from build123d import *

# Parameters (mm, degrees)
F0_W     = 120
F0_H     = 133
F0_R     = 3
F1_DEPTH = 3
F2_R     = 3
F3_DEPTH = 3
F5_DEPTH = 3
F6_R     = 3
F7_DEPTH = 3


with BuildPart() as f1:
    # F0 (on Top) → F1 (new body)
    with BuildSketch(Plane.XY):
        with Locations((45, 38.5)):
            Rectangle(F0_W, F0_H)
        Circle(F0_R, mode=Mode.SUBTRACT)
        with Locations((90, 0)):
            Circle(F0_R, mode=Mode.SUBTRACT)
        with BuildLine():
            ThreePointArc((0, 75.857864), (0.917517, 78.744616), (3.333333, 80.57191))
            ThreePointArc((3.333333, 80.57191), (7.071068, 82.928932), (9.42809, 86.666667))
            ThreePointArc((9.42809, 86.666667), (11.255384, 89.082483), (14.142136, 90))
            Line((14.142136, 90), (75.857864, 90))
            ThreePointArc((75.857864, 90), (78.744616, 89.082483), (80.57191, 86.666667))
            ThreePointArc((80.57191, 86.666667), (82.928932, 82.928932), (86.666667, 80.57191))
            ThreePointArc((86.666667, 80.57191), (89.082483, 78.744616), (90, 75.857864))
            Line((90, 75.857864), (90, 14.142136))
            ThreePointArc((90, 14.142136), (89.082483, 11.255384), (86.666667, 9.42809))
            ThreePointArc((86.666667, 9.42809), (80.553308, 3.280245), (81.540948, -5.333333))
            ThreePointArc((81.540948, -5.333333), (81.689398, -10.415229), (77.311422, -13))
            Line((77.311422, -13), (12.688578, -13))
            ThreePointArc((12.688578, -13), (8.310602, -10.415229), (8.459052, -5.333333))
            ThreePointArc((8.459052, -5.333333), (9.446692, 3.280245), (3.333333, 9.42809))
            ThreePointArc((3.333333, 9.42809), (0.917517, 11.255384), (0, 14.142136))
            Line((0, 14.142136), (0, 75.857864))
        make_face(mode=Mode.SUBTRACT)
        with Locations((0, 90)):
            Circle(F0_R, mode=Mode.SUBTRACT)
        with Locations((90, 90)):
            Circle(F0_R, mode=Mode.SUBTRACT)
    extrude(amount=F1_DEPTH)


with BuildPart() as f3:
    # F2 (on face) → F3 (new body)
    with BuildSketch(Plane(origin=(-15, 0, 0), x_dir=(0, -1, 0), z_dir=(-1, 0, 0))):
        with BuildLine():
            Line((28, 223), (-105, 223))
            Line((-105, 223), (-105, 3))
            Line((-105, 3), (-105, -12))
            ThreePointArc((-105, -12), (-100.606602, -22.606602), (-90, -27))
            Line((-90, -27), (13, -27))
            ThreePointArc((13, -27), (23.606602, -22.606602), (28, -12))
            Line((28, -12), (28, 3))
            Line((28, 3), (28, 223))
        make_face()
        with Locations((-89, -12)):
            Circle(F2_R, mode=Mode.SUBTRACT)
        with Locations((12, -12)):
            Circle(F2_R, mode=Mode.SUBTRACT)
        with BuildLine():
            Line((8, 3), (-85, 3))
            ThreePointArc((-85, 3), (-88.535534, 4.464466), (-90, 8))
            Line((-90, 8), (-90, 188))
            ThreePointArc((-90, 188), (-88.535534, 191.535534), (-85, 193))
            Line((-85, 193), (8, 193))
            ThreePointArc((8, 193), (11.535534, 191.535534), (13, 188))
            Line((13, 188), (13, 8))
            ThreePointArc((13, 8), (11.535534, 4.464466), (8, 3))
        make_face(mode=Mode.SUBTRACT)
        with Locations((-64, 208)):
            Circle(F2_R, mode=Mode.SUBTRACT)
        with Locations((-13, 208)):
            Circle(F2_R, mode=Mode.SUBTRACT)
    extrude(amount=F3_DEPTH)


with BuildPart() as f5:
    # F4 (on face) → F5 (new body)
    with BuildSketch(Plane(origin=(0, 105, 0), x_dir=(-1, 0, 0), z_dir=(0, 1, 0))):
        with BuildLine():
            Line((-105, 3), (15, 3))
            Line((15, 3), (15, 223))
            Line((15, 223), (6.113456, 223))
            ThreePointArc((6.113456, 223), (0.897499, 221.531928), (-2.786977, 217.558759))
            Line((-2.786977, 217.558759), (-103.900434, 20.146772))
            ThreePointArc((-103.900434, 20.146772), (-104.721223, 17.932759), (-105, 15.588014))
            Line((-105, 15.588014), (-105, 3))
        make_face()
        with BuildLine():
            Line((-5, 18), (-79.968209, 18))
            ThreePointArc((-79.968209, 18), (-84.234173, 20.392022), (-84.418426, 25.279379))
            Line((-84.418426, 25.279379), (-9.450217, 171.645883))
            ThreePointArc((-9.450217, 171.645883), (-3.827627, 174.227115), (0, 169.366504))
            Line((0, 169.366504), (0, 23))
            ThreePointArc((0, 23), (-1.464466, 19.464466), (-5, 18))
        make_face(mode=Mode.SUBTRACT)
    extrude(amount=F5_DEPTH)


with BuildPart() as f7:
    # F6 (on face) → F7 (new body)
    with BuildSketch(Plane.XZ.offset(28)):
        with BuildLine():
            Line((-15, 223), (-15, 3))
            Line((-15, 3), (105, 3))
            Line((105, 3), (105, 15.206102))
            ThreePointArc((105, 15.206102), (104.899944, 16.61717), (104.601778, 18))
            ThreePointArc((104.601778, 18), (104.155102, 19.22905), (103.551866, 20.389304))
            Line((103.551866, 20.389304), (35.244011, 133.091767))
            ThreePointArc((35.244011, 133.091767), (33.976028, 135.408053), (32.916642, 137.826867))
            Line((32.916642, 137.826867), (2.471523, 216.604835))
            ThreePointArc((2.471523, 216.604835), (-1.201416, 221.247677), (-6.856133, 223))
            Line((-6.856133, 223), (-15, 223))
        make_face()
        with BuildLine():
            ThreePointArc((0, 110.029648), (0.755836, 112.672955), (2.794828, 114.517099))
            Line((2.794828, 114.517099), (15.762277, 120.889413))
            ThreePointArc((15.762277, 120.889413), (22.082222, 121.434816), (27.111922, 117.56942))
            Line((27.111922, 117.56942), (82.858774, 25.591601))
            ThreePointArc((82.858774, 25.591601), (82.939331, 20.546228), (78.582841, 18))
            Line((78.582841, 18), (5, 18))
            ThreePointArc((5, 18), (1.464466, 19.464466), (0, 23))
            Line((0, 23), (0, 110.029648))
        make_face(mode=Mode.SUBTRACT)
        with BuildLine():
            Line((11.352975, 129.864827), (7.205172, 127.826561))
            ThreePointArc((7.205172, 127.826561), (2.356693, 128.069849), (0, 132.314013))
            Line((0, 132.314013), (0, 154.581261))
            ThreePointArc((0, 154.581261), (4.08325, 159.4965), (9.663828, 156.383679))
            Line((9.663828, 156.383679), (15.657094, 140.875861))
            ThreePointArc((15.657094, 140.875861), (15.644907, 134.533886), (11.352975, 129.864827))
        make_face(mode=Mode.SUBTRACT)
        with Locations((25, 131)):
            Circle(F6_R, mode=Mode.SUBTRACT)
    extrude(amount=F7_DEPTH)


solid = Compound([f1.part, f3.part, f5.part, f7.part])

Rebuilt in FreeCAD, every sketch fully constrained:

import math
import FreeCAD as App
import Part
import Sketcher

V = App.Vector

doc = App.newDocument("Part")
body = doc.addObject("PartDesign::Body", "Body")

# Sketch on XY plane
sketch1 = body.newObject("Sketcher::SketchObject", "Sketch")
sketch1.AttachmentSupport = (doc.getObject("XY_Plane"), [""])
sketch1.MapMode = "FlatFace"
sketch1.addGeometry(Part.LineSegment(V(-15, 105, 0), V(-15, -28, 0)), False)
sketch1.addGeometry(Part.LineSegment(V(-15, -28, 0), V(105, -28, 0)), False)
sketch1.addGeometry(Part.LineSegment(V(105, -28, 0), V(105, 105, 0)), False)
sketch1.addGeometry(Part.LineSegment(V(105, 105, 0), V(-15, 105, 0)), False)
sketch1.addGeometry(Part.Circle(V(0, 0, 0), V(0, 0, 1), 3), False)
sketch1.addGeometry(Part.Circle(V(90, 0, 0), V(0, 0, 1), 3), False)
sketch1.addGeometry(Part.LineSegment(V(0, 14.1, 0), V(0, 75.9, 0)), False)
sketch1.addGeometry(Part.ArcOfCircle(Part.Circle(V(5, 75.9, 0), V(0, 0, 1), 5), math.radians(109), math.radians(180)), False)
sketch1.addGeometry(Part.ArcOfCircle(Part.Circle(V(0, 90, 0), V(0, 0, 1), 10), math.radians(-71), math.radians(-19)), False)
sketch1.addGeometry(Part.ArcOfCircle(Part.Circle(V(14.1, 85, 0), V(0, 0, 1), 5), math.radians(90), math.radians(161)), False)
sketch1.addGeometry(Part.LineSegment(V(14.1, 90, 0), V(75.9, 90, 0)), False)
sketch1.addGeometry(Part.ArcOfCircle(Part.Circle(V(75.9, 85, 0), V(0, 0, 1), 5), math.radians(19), math.radians(90)), False)
sketch1.addGeometry(Part.ArcOfCircle(Part.Circle(V(90, 90, 0), V(0, 0, 1), 10), math.radians(-161), math.radians(-109)), False)
sketch1.addGeometry(Part.ArcOfCircle(Part.Circle(V(85, 75.9, 0), V(0, 0, 1), 5), math.radians(0), math.radians(71)), False)
sketch1.addGeometry(Part.LineSegment(V(90, 75.9, 0), V(90, 14.1, 0)), False)
sketch1.addGeometry(Part.ArcOfCircle(Part.Circle(V(85, 14.1, 0), V(0, 0, 1), 5), math.radians(-71), math.radians(0)), False)
sketch1.addGeometry(Part.ArcOfCircle(Part.Circle(V(90, 0, 0), V(0, 0, 1), 10), math.radians(109), math.radians(212)), False)
sketch1.addGeometry(Part.ArcOfCircle(Part.Circle(V(77.3, -8, 0), V(0, 0, 1), 5), math.radians(-90), math.radians(32)), False)
sketch1.addGeometry(Part.LineSegment(V(77.3, -13, 0), V(12.7, -13, 0)), False)
sketch1.addGeometry(Part.ArcOfCircle(Part.Circle(V(12.7, -8, 0), V(0, 0, 1), 5), math.radians(148), math.radians(270)), False)
sketch1.addGeometry(Part.ArcOfCircle(Part.Circle(V(0, 0, 0), V(0, 0, 1), 10), math.radians(-32), math.radians(71)), False)
sketch1.addGeometry(Part.ArcOfCircle(Part.Circle(V(5, 14.1, 0), V(0, 0, 1), 5), math.radians(180), math.radians(251)), False)
sketch1.addGeometry(Part.Circle(V(0, 90, 0), V(0, 0, 1), 3), False)
sketch1.addGeometry(Part.Circle(V(90, 90, 0), V(0, 0, 1), 3), False)
sketch1.addConstraint(Sketcher.Constraint("Coincident", 0, 2, 1, 1))
sketch1.addConstraint(Sketcher.Constraint("Coincident", 1, 2, 2, 1))
sketch1.addConstraint(Sketcher.Constraint("Coincident", 2, 2, 3, 1))
sketch1.addConstraint(Sketcher.Constraint("Coincident", 3, 2, 0, 1))
sketch1.addConstraint(Sketcher.Constraint("Tangent", 6, 2, 7, 2))
sketch1.addConstraint(Sketcher.Constraint("Tangent", 7, 1, 8, 1))
sketch1.addConstraint(Sketcher.Constraint("Tangent", 8, 2, 9, 2))
sketch1.addConstraint(Sketcher.Constraint("Tangent", 9, 1, 10, 1))
sketch1.addConstraint(Sketcher.Constraint("Tangent", 10, 2, 11, 2))
sketch1.addConstraint(Sketcher.Constraint("Tangent", 11, 1, 12, 1))
sketch1.addConstraint(Sketcher.Constraint("Tangent", 12, 2, 13, 2))
sketch1.addConstraint(Sketcher.Constraint("Tangent", 13, 1, 14, 1))
sketch1.addConstraint(Sketcher.Constraint("Tangent", 14, 2, 15, 2))
sketch1.addConstraint(Sketcher.Constraint("Tangent", 15, 1, 16, 1))
sketch1.addConstraint(Sketcher.Constraint("Tangent", 16, 2, 17, 2))
sketch1.addConstraint(Sketcher.Constraint("Tangent", 17, 1, 18, 1))
sketch1.addConstraint(Sketcher.Constraint("Tangent", 18, 2, 19, 2))
sketch1.addConstraint(Sketcher.Constraint("Tangent", 19, 1, 20, 1))
sketch1.addConstraint(Sketcher.Constraint("Tangent", 20, 2, 21, 2))
sketch1.addConstraint(Sketcher.Constraint("Tangent", 21, 1, 6, 1))
sketch1.addConstraint(Sketcher.Constraint("Vertical", 0))
sketch1.addConstraint(Sketcher.Constraint("Horizontal", 1))
sketch1.addConstraint(Sketcher.Constraint("Vertical", 2))
sketch1.addConstraint(Sketcher.Constraint("Horizontal", 3))
sketch1.addConstraint(Sketcher.Constraint("Vertical", 6))
sketch1.addConstraint(Sketcher.Constraint("Horizontal", 10))
sketch1.addConstraint(Sketcher.Constraint("Vertical", 14))
sketch1.addConstraint(Sketcher.Constraint("Horizontal", 18))
sketch1.addConstraint(Sketcher.Constraint("Coincident", 4, 3, -1, 1))
sketch1.addConstraint(Sketcher.Constraint("Coincident", 20, 3, -1, 1))
sketch1.addConstraint(Sketcher.Constraint("Coincident", 16, 3, 5, 3))
sketch1.addConstraint(Sketcher.Constraint("Coincident", 22, 3, 8, 3))
sketch1.addConstraint(Sketcher.Constraint("Coincident", 23, 3, 12, 3))
sketch1.addConstraint(Sketcher.Constraint("Equal", 4, 5))
sketch1.addConstraint(Sketcher.Constraint("Equal", 7, 9))
sketch1.addConstraint(Sketcher.Constraint("Equal", 9, 11))
sketch1.addConstraint(Sketcher.Constraint("Equal", 8, 12))
sketch1.addConstraint(Sketcher.Constraint("Equal", 11, 13))
sketch1.addConstraint(Sketcher.Constraint("Equal", 13, 15))
sketch1.addConstraint(Sketcher.Constraint("Equal", 15, 17))
sketch1.addConstraint(Sketcher.Constraint("Equal", 17, 19))
sketch1.addConstraint(Sketcher.Constraint("Equal", 16, 20))
sketch1.addConstraint(Sketcher.Constraint("Equal", 19, 21))
sketch1.addConstraint(Sketcher.Constraint("Equal", 5, 22))
sketch1.addConstraint(Sketcher.Constraint("Equal", 22, 23))
sketch1.addConstraint(Sketcher.Constraint("PointOnObject", 5, 3, -1))
sketch1.addConstraint(Sketcher.Constraint("PointOnObject", 22, 3, -2))
sketch1.addConstraint(Sketcher.Constraint("PointOnObject", 6, 2, -2))
sketch1.addConstraint(Sketcher.Constraint("Horizontal", 8, 3, 12, 3))
sketch1.addConstraint(Sketcher.Constraint("Horizontal", 7, 3, 13, 3))
sketch1.addConstraint(Sketcher.Constraint("Horizontal", 15, 3, 21, 3))
sketch1.addConstraint(Sketcher.Constraint("Horizontal", 23, 3, 9, 1))
sketch1.addConstraint(Sketcher.Constraint("Vertical", 12, 2, 15, 1))
sketch1.addConstraint(Sketcher.Constraint("Equal", 10, 6))
sketch1.addConstraint(Sketcher.Constraint("Diameter", 4, 6.0))
sketch1.addConstraint(Sketcher.Constraint("Radius", 7, 5.0))
sketch1.addConstraint(Sketcher.Constraint("Radius", 16, 10.0))
sketch1.addConstraint(Sketcher.Constraint("DistanceX", 1, 1, 1, 2, 120.0))
sketch1.addConstraint(Sketcher.Constraint("DistanceY", 0, 2, 0, 1, 133.0))
sketch1.addConstraint(Sketcher.Constraint("DistanceX", -1, 1, 5, 3, 90.0))
sketch1.addConstraint(Sketcher.Constraint("DistanceY", 17, 3, -1, 1, 8.0))
sketch1.addConstraint(Sketcher.Constraint("DistanceX", 0, 2, -1, 1, 15.0))
sketch1.addConstraint(Sketcher.Constraint("DistanceY", 0, 2, -1, 1, 28.0))
pad1 = body.newObject("PartDesign::Pad", "Pad")
pad1.Profile = sketch1
pad1.Length = 3
body2 = doc.addObject("PartDesign::Body", "Body001")

# Sketch on YZ plane
sketch2 = body2.newObject("Sketcher::SketchObject", "Sketch001")
sketch2.AttachmentSupport = (doc.getObject("YZ_Plane001"), [""])
sketch2.MapMode = "FlatFace"
sketch2.AttachmentOffset = App.Placement(V(0, 0, -15), App.Rotation())
sketch2.addGeometry(Part.LineSegment(V(-28, 223, 0), V(105, 223, 0)), False)
sketch2.addGeometry(Part.LineSegment(V(105, 223, 0), V(105, -12, 0)), False)
sketch2.addGeometry(Part.ArcOfCircle(Part.Circle(V(90, -12, 0), V(0, 0, 1), 15), math.radians(-90), math.radians(0)), False)
sketch2.addGeometry(Part.LineSegment(V(90, -27, 0), V(-13, -27, 0)), False)
sketch2.addGeometry(Part.ArcOfCircle(Part.Circle(V(-13, -12, 0), V(0, 0, 1), 15), math.radians(180), math.radians(270)), False)
sketch2.addGeometry(Part.LineSegment(V(-28, -12, 0), V(-28, 223, 0)), False)
sketch2.addGeometry(Part.Circle(V(89, -12, 0), V(0, 0, 1), 3), False)
sketch2.addGeometry(Part.Circle(V(-12, -12, 0), V(0, 0, 1), 3), False)
sketch2.addGeometry(Part.Circle(V(64, 208, 0), V(0, 0, 1), 3), False)
sketch2.addGeometry(Part.ArcOfCircle(Part.Circle(V(-8, 8, 0), V(0, 0, 1), 5), math.radians(180), math.radians(270)), False)
sketch2.addGeometry(Part.LineSegment(V(-8, 3, 0), V(85, 3, 0)), False)
sketch2.addGeometry(Part.ArcOfCircle(Part.Circle(V(85, 8, 0), V(0, 0, 1), 5), math.radians(-90), math.radians(0)), False)
sketch2.addGeometry(Part.LineSegment(V(90, 8, 0), V(90, 188, 0)), False)
sketch2.addGeometry(Part.ArcOfCircle(Part.Circle(V(85, 188, 0), V(0, 0, 1), 5), math.radians(0), math.radians(90)), False)
sketch2.addGeometry(Part.LineSegment(V(85, 193, 0), V(-8, 193, 0)), False)
sketch2.addGeometry(Part.ArcOfCircle(Part.Circle(V(-8, 188, 0), V(0, 0, 1), 5), math.radians(90), math.radians(180)), False)
sketch2.addGeometry(Part.LineSegment(V(-13, 188, 0), V(-13, 8, 0)), False)
sketch2.addGeometry(Part.Circle(V(13, 208, 0), V(0, 0, 1), 3), False)
sketch2.addConstraint(Sketcher.Constraint("Coincident", 0, 2, 1, 1))
sketch2.addConstraint(Sketcher.Constraint("Tangent", 1, 2, 2, 2))
sketch2.addConstraint(Sketcher.Constraint("Tangent", 2, 1, 3, 1))
sketch2.addConstraint(Sketcher.Constraint("Tangent", 3, 2, 4, 2))
sketch2.addConstraint(Sketcher.Constraint("Tangent", 4, 1, 5, 1))
sketch2.addConstraint(Sketcher.Constraint("Coincident", 5, 2, 0, 1))
sketch2.addConstraint(Sketcher.Constraint("Tangent", 9, 2, 10, 1))
sketch2.addConstraint(Sketcher.Constraint("Tangent", 10, 2, 11, 1))
sketch2.addConstraint(Sketcher.Constraint("Tangent", 11, 2, 12, 1))
sketch2.addConstraint(Sketcher.Constraint("Tangent", 12, 2, 13, 1))
sketch2.addConstraint(Sketcher.Constraint("Tangent", 13, 2, 14, 1))
sketch2.addConstraint(Sketcher.Constraint("Tangent", 14, 2, 15, 1))
sketch2.addConstraint(Sketcher.Constraint("Tangent", 15, 2, 16, 1))
sketch2.addConstraint(Sketcher.Constraint("Tangent", 16, 2, 9, 1))
sketch2.addConstraint(Sketcher.Constraint("Horizontal", 0))
sketch2.addConstraint(Sketcher.Constraint("Vertical", 1))
sketch2.addConstraint(Sketcher.Constraint("Horizontal", 3))
sketch2.addConstraint(Sketcher.Constraint("Vertical", 5))
sketch2.addConstraint(Sketcher.Constraint("Horizontal", 10))
sketch2.addConstraint(Sketcher.Constraint("Vertical", 12))
sketch2.addConstraint(Sketcher.Constraint("Horizontal", 14))
sketch2.addConstraint(Sketcher.Constraint("Vertical", 16))
sketch2.addConstraint(Sketcher.Constraint("Equal", 2, 4))
sketch2.addConstraint(Sketcher.Constraint("Equal", 6, 7))
sketch2.addConstraint(Sketcher.Constraint("Equal", 7, 8))
sketch2.addConstraint(Sketcher.Constraint("Equal", 9, 11))
sketch2.addConstraint(Sketcher.Constraint("Equal", 11, 13))
sketch2.addConstraint(Sketcher.Constraint("Equal", 13, 15))
sketch2.addConstraint(Sketcher.Constraint("Equal", 8, 17))
sketch2.addConstraint(Sketcher.Constraint("Horizontal", 4, 3, 6, 3))
sketch2.addConstraint(Sketcher.Constraint("Horizontal", 6, 3, 7, 3))
sketch2.addConstraint(Sketcher.Constraint("Horizontal", 8, 3, 17, 3))
sketch2.addConstraint(Sketcher.Constraint("Vertical", 2, 1, 11, 2))
sketch2.addConstraint(Sketcher.Constraint("Vertical", 3, 2, 15, 2))
sketch2.addConstraint(Sketcher.Constraint("Diameter", 6, 6.0))
sketch2.addConstraint(Sketcher.Constraint("Radius", 2, 14.999999))
sketch2.addConstraint(Sketcher.Constraint("Radius", 9, 5.0))
sketch2.addConstraint(Sketcher.Constraint("DistanceX", 0, 1, 0, 2, 133.0))
sketch2.addConstraint(Sketcher.Constraint("DistanceY", 1, 2, 1, 1, 235.0))
sketch2.addConstraint(Sketcher.Constraint("DistanceY", 12, 1, 12, 2, 180.0))
sketch2.addConstraint(Sketcher.Constraint("DistanceX", -1, 1, 2, 3, 90.000001))
sketch2.addConstraint(Sketcher.Constraint("DistanceY", 2, 3, -1, 1, 12.000001))
sketch2.addConstraint(Sketcher.Constraint("DistanceX", -1, 1, 6, 3, 89.0))
sketch2.addConstraint(Sketcher.Constraint("DistanceX", 7, 3, -1, 1, 12.0))
sketch2.addConstraint(Sketcher.Constraint("DistanceX", -1, 1, 8, 3, 64.0))
sketch2.addConstraint(Sketcher.Constraint("DistanceY", -1, 1, 8, 3, 208.0))
sketch2.addConstraint(Sketcher.Constraint("DistanceY", -1, 1, 9, 3, 8.0))
sketch2.addConstraint(Sketcher.Constraint("DistanceX", -1, 1, 17, 3, 13.0))
pad2 = body2.newObject("PartDesign::Pad", "Pad001")
pad2.Profile = sketch2
pad2.Length = 3
pad2.Reversed = True
body3 = doc.addObject("PartDesign::Body", "Body002")

# Sketch on XZ plane
sketch3 = body3.newObject("Sketcher::SketchObject", "Sketch002")
sketch3.AttachmentSupport = (doc.getObject("XZ_Plane002"), [""])
sketch3.MapMode = "FlatFace"
sketch3.AttachmentOffset = App.Placement(V(0, 0, -105), App.Rotation())
sketch3.addGeometry(Part.LineSegment(V(105, 3, 0), V(-15, 3, 0)), False)
sketch3.addGeometry(Part.LineSegment(V(-15, 3, 0), V(-15, 223, 0)), False)
sketch3.addGeometry(Part.LineSegment(V(-15, 223, 0), V(-6.1, 223, 0)), False)
sketch3.addGeometry(Part.ArcOfCircle(Part.Circle(V(-6.1, 213, 0), V(0, 0, 1), 10), math.radians(27), math.radians(90)), False)
sketch3.addGeometry(Part.LineSegment(V(2.8, 217.6, 0), V(103.9, 20.1, 0)), False)
sketch3.addGeometry(Part.ArcOfCircle(Part.Circle(V(95, 15.6, 0), V(0, 0, 1), 10), math.radians(0), math.radians(27)), False)
sketch3.addGeometry(Part.LineSegment(V(105, 15.6, 0), V(105, 3, 0)), False)
sketch3.addGeometry(Part.ArcOfCircle(Part.Circle(V(5, 23, 0), V(0, 0, 1), 5), math.radians(180), math.radians(270)), False)
sketch3.addGeometry(Part.LineSegment(V(5, 18, 0), V(80, 18, 0)), False)
sketch3.addGeometry(Part.ArcOfCircle(Part.Circle(V(80, 23, 0), V(0, 0, 1), 5), math.radians(-90), math.radians(27)), False)
sketch3.addGeometry(Part.LineSegment(V(84.4, 25.3, 0), V(9.5, 171.6, 0)), False)
sketch3.addGeometry(Part.ArcOfCircle(Part.Circle(V(5, 169.4, 0), V(0, 0, 1), 5), math.radians(27), math.radians(180)), False)
sketch3.addGeometry(Part.LineSegment(V(0, 169.4, 0), V(0, 23, 0)), False)
sketch3.addConstraint(Sketcher.Constraint("Coincident", 0, 2, 1, 1))
sketch3.addConstraint(Sketcher.Constraint("Coincident", 1, 2, 2, 1))
sketch3.addConstraint(Sketcher.Constraint("Tangent", 2, 2, 3, 2))
sketch3.addConstraint(Sketcher.Constraint("Tangent", 3, 1, 4, 1))
sketch3.addConstraint(Sketcher.Constraint("Tangent", 4, 2, 5, 2))
sketch3.addConstraint(Sketcher.Constraint("Tangent", 5, 1, 6, 1))
sketch3.addConstraint(Sketcher.Constraint("Coincident", 6, 2, 0, 1))
sketch3.addConstraint(Sketcher.Constraint("Tangent", 7, 2, 8, 1))
sketch3.addConstraint(Sketcher.Constraint("Tangent", 8, 2, 9, 1))
sketch3.addConstraint(Sketcher.Constraint("Tangent", 9, 2, 10, 1))
sketch3.addConstraint(Sketcher.Constraint("Tangent", 10, 2, 11, 1))
sketch3.addConstraint(Sketcher.Constraint("Tangent", 11, 2, 12, 1))
sketch3.addConstraint(Sketcher.Constraint("Tangent", 12, 2, 7, 1))
sketch3.addConstraint(Sketcher.Constraint("Horizontal", 0))
sketch3.addConstraint(Sketcher.Constraint("Vertical", 1))
sketch3.addConstraint(Sketcher.Constraint("Horizontal", 2))
sketch3.addConstraint(Sketcher.Constraint("Vertical", 6))
sketch3.addConstraint(Sketcher.Constraint("Horizontal", 8))
sketch3.addConstraint(Sketcher.Constraint("Vertical", 12))
sketch3.addConstraint(Sketcher.Constraint("Equal", 7, 9))
sketch3.addConstraint(Sketcher.Constraint("Equal", 9, 11))
sketch3.addConstraint(Sketcher.Constraint("PointOnObject", 11, 2, -2))
sketch3.addConstraint(Sketcher.Constraint("Parallel", 4, 10))
sketch3.addConstraint(Sketcher.Constraint("Radius", 7, 5.0))
sketch3.addConstraint(Sketcher.Constraint("DistanceX", 0, 2, 0, 1, 120.0))
sketch3.addConstraint(Sketcher.Constraint("DistanceY", 1, 1, 1, 2, 220.0))
sketch3.addConstraint(Sketcher.Constraint("DistanceY", -1, 1, 7, 3, 23.0))
sketch3.addConstraint(Sketcher.Constraint("DistanceX", 0, 2, -1, 1, 15.0))
sketch3.addConstraint(Sketcher.Constraint("DistanceY", -1, 1, 0, 2, 3.0))
sketch3.addConstraint(Sketcher.Constraint("Radius", 5, 9.99999))
sketch3.addConstraint(Sketcher.Constraint("Radius", 3, 9.999998))
sketch3.addConstraint(Sketcher.Constraint("DistanceX", 8, 1, 8, 2, 74.968209))
sketch3.addConstraint(Sketcher.Constraint("DistanceY", 11, 3, 3, 3, 43.633499))
sketch3.addConstraint(Sketcher.Constraint("DistanceX", 2, 1, 2, 2, 8.886544))
pad3 = body3.newObject("PartDesign::Pad", "Pad002")
pad3.Profile = sketch3
pad3.Length = 3
pad3.Reversed = True
body4 = doc.addObject("PartDesign::Body", "Body003")

# Sketch on XZ plane
sketch4 = body4.newObject("Sketcher::SketchObject", "Sketch003")
sketch4.AttachmentSupport = (doc.getObject("XZ_Plane003"), [""])
sketch4.MapMode = "FlatFace"
sketch4.AttachmentOffset = App.Placement(V(0, 0, 28), App.Rotation())
sketch4.addGeometry(Part.LineSegment(V(-15, 223, 0), V(-15, 3, 0)), False)
sketch4.addGeometry(Part.LineSegment(V(-15, 3, 0), V(105, 3, 0)), False)
sketch4.addGeometry(Part.LineSegment(V(105, 3, 0), V(105, 15.2, 0)), False)
sketch4.addGeometry(Part.ArcOfCircle(Part.Circle(V(95, 15.2, 0), V(0, 0, 1), 10), math.radians(0), math.radians(16.22)), False)
sketch4.addGeometry(Part.ArcOfCircle(Part.Circle(V(95, 15.2, 0), V(0, 0, 1), 10), math.radians(16.22), math.radians(31.22)), False)
sketch4.addGeometry(Part.LineSegment(V(103.6, 20.4, 0), V(35.2, 133.1, 0)), False)
sketch4.addGeometry(Part.ArcOfCircle(Part.Circle(V(60.9, 148.6, 0), V(0, 0, 1), 30), math.radians(-158.87), math.radians(-148.78)), False)
sketch4.addGeometry(Part.LineSegment(V(32.9, 137.8, 0), V(2.5, 216.6, 0)), False)
sketch4.addGeometry(Part.ArcOfCircle(Part.Circle(V(-6.9, 213, 0), V(0, 0, 1), 10), math.radians(21), math.radians(90)), False)
sketch4.addGeometry(Part.LineSegment(V(-6.9, 223, 0), V(-15, 223, 0)), False)
sketch4.addGeometry(Part.LineSegment(V(0, 23, 0), V(0, 110, 0)), False)
sketch4.addGeometry(Part.ArcOfCircle(Part.Circle(V(5, 110, 0), V(0, 0, 1), 5), math.radians(116), math.radians(180)), False)
sketch4.addGeometry(Part.LineSegment(V(2.8, 114.5, 0), V(15.8, 120.9, 0)), False)
sketch4.addGeometry(Part.ArcOfCircle(Part.Circle(V(19.6, 113, 0), V(0, 0, 1), 8.8), math.radians(31), math.radians(116)), False)
sketch4.addGeometry(Part.LineSegment(V(27.1, 117.6, 0), V(82.9, 25.6, 0)), False)
sketch4.addGeometry(Part.ArcOfCircle(Part.Circle(V(78.6, 23, 0), V(0, 0, 1), 5), math.radians(-90), math.radians(31)), False)
sketch4.addGeometry(Part.LineSegment(V(78.6, 18, 0), V(5, 18, 0)), False)
sketch4.addGeometry(Part.ArcOfCircle(Part.Circle(V(5, 23, 0), V(0, 0, 1), 5), math.radians(180), math.radians(270)), False)
sketch4.addGeometry(Part.ArcOfCircle(Part.Circle(V(7.5, 137.7, 0), V(0, 0, 1), 8.8), math.radians(-64), math.radians(21)), False)
sketch4.addGeometry(Part.LineSegment(V(11.4, 129.9, 0), V(7.2, 127.8, 0)), False)
sketch4.addGeometry(Part.ArcOfCircle(Part.Circle(V(5, 132.3, 0), V(0, 0, 1), 5), math.radians(-180), math.radians(-64)), False)
sketch4.addGeometry(Part.LineSegment(V(0, 132.3, 0), V(0, 154.6, 0)), False)
sketch4.addGeometry(Part.ArcOfCircle(Part.Circle(V(5, 154.6, 0), V(0, 0, 1), 5), math.radians(21), math.radians(180)), False)
sketch4.addGeometry(Part.LineSegment(V(9.7, 156.4, 0), V(15.7, 140.9, 0)), False)
sketch4.addGeometry(Part.Circle(V(25, 131, 0), V(0, 0, 1), 3), False)
sketch4.addConstraint(Sketcher.Constraint("Coincident", 0, 2, 1, 1))
sketch4.addConstraint(Sketcher.Constraint("Coincident", 1, 2, 2, 1))
sketch4.addConstraint(Sketcher.Constraint("Tangent", 2, 2, 3, 1))
sketch4.addConstraint(Sketcher.Constraint("Tangent", 3, 2, 4, 1))
sketch4.addConstraint(Sketcher.Constraint("Tangent", 4, 2, 5, 1))
sketch4.addConstraint(Sketcher.Constraint("Tangent", 5, 2, 6, 2))
sketch4.addConstraint(Sketcher.Constraint("Tangent", 6, 1, 7, 1))
sketch4.addConstraint(Sketcher.Constraint("Tangent", 7, 2, 8, 1))
sketch4.addConstraint(Sketcher.Constraint("Tangent", 8, 2, 9, 1))
sketch4.addConstraint(Sketcher.Constraint("Coincident", 9, 2, 0, 1))
sketch4.addConstraint(Sketcher.Constraint("Tangent", 10, 2, 11, 2))
sketch4.addConstraint(Sketcher.Constraint("Tangent", 11, 1, 12, 1))
sketch4.addConstraint(Sketcher.Constraint("Tangent", 12, 2, 13, 2))
sketch4.addConstraint(Sketcher.Constraint("Tangent", 13, 1, 14, 1))
sketch4.addConstraint(Sketcher.Constraint("Tangent", 14, 2, 15, 2))
sketch4.addConstraint(Sketcher.Constraint("Tangent", 15, 1, 16, 1))
sketch4.addConstraint(Sketcher.Constraint("Tangent", 16, 2, 17, 2))
sketch4.addConstraint(Sketcher.Constraint("Tangent", 17, 1, 10, 1))
sketch4.addConstraint(Sketcher.Constraint("Tangent", 18, 1, 19, 1))
sketch4.addConstraint(Sketcher.Constraint("Tangent", 19, 2, 20, 2))
sketch4.addConstraint(Sketcher.Constraint("Tangent", 20, 1, 21, 1))
sketch4.addConstraint(Sketcher.Constraint("Tangent", 21, 2, 22, 2))
sketch4.addConstraint(Sketcher.Constraint("Tangent", 22, 1, 23, 1))
sketch4.addConstraint(Sketcher.Constraint("Tangent", 23, 2, 18, 2))
sketch4.addConstraint(Sketcher.Constraint("Vertical", 0))
sketch4.addConstraint(Sketcher.Constraint("Horizontal", 1))
sketch4.addConstraint(Sketcher.Constraint("Vertical", 2))
sketch4.addConstraint(Sketcher.Constraint("Horizontal", 9))
sketch4.addConstraint(Sketcher.Constraint("Vertical", 10))
sketch4.addConstraint(Sketcher.Constraint("Horizontal", 16))
sketch4.addConstraint(Sketcher.Constraint("Vertical", 21))
sketch4.addConstraint(Sketcher.Constraint("Equal", 11, 15))
sketch4.addConstraint(Sketcher.Constraint("Equal", 15, 17))
sketch4.addConstraint(Sketcher.Constraint("Equal", 17, 20))
sketch4.addConstraint(Sketcher.Constraint("Equal", 20, 22))
sketch4.addConstraint(Sketcher.Constraint("PointOnObject", 10, 2, -2))
sketch4.addConstraint(Sketcher.Constraint("PointOnObject", 20, 1, -2))
sketch4.addConstraint(Sketcher.Constraint("Parallel", 5, 14))
sketch4.addConstraint(Sketcher.Constraint("Parallel", 12, 19))
sketch4.addConstraint(Sketcher.Constraint("Parallel", 7, 23))
sketch4.addConstraint(Sketcher.Constraint("Horizontal", 3, 3, 4, 3))
sketch4.addConstraint(Sketcher.Constraint("Horizontal", 3, 2, 15, 1))
sketch4.addConstraint(Sketcher.Constraint("Diameter", 24, 6.0))
sketch4.addConstraint(Sketcher.Constraint("Radius", 8, 10.0))
sketch4.addConstraint(Sketcher.Constraint("Radius", 11, 5.0))
sketch4.addConstraint(Sketcher.Constraint("DistanceX", 1, 1, 1, 2, 120.0))
sketch4.addConstraint(Sketcher.Constraint("DistanceY", 0, 2, 0, 1, 220.0))
sketch4.addConstraint(Sketcher.Constraint("DistanceY", -1, 1, 8, 3, 213.0))
sketch4.addConstraint(Sketcher.Constraint("DistanceY", -1, 1, 15, 3, 23.0))
sketch4.addConstraint(Sketcher.Constraint("DistanceX", -1, 1, 24, 3, 25.0))
sketch4.addConstraint(Sketcher.Constraint("DistanceY", -1, 1, 24, 3, 131.0))
sketch4.addConstraint(Sketcher.Constraint("DistanceX", 0, 2, -1, 1, 15.0))
sketch4.addConstraint(Sketcher.Constraint("Radius", 13, 8.75595))
sketch4.addConstraint(Sketcher.Constraint("Radius", 18, 8.752991))
sketch4.addConstraint(Sketcher.Constraint("Radius", 3, 9.999997))
sketch4.addConstraint(Sketcher.Constraint("Radius", 6, 29.999985))
sketch4.addConstraint(Sketcher.Constraint("DistanceX", 16, 2, 16, 1, 73.582841))
sketch4.addConstraint(Sketcher.Constraint("DistanceY", 21, 1, 21, 2, 22.267248))
sketch4.addConstraint(Sketcher.Constraint("DistanceY", -1, 1, 11, 1, 114.517099))
sketch4.addConstraint(Sketcher.Constraint("DistanceY", -1, 1, 14, 2, 25.591601))
sketch4.addConstraint(Sketcher.Constraint("DistanceY", 2, 2, 3, 2, 2.793898))
sketch4.addConstraint(Sketcher.Constraint("DistanceY", 5, 2, 6, 1, 4.7351))
sketch4.addConstraint(Sketcher.Constraint("DistanceY", 12, 2, 20, 3, 11.424601))
sketch4.addConstraint(Sketcher.Constraint("DistanceX", 18, 1, 12, 2, 4.409302))
sketch4.addConstraint(Sketcher.Constraint("Distance", 5, 131.78698))
pad4 = body4.newObject("PartDesign::Pad", "Pad003")
pad4.Profile = sketch4
pad4.Length = 3

doc.recompute()
